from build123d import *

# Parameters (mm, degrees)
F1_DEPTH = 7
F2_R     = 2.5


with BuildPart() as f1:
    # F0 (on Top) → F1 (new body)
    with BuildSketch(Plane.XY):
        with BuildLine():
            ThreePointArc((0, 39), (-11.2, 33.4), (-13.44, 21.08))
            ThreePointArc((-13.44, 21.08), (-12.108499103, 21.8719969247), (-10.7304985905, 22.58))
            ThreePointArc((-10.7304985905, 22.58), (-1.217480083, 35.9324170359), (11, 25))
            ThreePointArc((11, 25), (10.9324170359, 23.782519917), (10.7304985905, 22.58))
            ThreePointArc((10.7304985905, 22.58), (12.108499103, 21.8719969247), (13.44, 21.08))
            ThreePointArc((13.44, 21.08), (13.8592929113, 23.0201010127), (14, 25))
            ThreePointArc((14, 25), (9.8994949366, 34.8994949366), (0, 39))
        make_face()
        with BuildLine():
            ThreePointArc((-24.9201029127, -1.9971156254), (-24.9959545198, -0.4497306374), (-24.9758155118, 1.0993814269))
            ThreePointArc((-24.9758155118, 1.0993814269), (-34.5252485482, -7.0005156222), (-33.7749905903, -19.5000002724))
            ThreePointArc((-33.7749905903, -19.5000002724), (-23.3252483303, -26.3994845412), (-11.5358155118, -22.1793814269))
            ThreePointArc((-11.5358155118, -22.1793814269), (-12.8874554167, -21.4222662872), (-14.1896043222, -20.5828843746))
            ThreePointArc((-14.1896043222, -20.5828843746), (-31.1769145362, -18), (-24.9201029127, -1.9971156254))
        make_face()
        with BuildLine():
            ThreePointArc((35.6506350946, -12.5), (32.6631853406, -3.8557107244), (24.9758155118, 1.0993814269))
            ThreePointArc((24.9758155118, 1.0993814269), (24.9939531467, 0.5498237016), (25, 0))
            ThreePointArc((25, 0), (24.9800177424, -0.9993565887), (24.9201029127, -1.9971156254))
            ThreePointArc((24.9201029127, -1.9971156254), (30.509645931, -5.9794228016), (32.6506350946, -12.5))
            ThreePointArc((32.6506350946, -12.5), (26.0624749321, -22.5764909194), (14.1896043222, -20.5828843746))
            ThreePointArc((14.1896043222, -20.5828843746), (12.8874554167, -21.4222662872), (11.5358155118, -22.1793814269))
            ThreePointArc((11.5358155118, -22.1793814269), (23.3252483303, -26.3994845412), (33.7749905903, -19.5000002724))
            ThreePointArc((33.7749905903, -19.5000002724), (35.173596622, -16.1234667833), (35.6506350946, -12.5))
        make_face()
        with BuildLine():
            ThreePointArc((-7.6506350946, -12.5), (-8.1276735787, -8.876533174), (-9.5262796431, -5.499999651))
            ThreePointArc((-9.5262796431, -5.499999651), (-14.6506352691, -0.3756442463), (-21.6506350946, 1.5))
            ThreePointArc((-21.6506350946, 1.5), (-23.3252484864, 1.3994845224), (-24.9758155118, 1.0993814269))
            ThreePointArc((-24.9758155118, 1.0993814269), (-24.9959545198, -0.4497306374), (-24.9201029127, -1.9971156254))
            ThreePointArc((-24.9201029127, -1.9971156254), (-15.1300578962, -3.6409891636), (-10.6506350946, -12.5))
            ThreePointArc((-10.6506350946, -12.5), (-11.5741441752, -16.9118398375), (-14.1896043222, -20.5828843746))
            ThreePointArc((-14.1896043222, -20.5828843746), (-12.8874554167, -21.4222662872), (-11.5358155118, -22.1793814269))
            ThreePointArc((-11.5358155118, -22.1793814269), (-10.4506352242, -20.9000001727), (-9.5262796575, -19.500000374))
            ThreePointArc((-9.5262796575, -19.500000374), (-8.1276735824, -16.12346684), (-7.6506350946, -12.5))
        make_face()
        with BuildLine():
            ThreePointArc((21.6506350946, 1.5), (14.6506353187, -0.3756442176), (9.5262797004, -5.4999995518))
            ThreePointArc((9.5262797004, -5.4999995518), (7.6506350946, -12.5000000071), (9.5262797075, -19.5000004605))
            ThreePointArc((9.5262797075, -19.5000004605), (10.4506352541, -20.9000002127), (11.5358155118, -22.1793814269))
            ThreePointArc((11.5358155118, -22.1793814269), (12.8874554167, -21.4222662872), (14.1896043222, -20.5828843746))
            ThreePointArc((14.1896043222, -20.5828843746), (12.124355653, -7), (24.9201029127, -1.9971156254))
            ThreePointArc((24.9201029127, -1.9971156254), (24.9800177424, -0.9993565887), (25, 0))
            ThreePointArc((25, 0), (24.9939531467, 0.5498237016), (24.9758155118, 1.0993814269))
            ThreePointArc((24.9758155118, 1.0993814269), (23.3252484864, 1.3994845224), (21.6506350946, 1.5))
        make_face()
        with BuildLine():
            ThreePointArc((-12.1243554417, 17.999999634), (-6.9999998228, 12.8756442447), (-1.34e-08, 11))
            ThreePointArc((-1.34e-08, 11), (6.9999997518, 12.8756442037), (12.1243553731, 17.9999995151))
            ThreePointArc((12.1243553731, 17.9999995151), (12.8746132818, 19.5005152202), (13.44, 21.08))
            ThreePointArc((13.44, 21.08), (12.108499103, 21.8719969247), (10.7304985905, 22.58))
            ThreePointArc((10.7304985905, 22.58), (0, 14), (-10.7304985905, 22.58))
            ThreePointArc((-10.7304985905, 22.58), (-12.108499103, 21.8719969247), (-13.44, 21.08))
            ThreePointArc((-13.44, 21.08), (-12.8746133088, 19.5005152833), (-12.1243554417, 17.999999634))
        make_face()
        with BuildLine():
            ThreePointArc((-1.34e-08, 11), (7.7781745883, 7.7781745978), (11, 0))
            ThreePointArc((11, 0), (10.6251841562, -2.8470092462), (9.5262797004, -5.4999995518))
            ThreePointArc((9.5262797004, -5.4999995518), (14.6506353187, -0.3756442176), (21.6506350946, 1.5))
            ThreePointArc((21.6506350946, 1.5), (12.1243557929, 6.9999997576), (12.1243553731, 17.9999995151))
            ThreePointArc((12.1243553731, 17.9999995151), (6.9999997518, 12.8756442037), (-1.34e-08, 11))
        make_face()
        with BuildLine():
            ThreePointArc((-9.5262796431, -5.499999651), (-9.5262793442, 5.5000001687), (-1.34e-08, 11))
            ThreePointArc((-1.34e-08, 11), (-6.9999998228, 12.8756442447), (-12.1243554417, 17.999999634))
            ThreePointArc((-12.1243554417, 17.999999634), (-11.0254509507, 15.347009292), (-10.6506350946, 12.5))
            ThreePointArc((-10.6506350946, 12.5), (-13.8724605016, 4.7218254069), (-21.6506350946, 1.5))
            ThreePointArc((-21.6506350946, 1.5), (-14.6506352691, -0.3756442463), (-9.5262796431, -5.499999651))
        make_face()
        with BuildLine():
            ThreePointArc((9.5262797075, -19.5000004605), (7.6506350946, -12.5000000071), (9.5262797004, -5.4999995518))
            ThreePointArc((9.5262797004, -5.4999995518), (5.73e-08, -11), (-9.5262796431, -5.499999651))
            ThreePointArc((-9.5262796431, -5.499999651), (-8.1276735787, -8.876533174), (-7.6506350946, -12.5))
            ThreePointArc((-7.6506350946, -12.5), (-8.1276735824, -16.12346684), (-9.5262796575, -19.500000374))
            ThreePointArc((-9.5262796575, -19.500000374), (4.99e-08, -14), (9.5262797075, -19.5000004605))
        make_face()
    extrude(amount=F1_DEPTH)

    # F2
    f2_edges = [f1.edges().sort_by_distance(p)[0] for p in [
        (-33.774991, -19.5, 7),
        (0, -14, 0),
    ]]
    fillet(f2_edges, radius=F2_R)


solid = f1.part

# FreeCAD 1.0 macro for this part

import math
import FreeCAD as App
import Part
import Sketcher

V = App.Vector
Q = App.Units.Quantity


def edges_at(feature, points):
    """Names of the edges that pass closest to the given points."""
    edges = feature.Shape.Edges
    near = lambda p: min(range(len(edges)), key=lambda i: edges[i].distToShape(Part.Vertex(*p))[0])
    return sorted({f"Edge{near(p) + 1}" for p in points})

doc = App.newDocument("Part")
body = doc.addObject("PartDesign::Body", "Body")

sketch1 = body.newObject("Sketcher::SketchObject", "Sketch")
sketch1.AttachmentSupport = (doc.getObject("XY_Plane"), [""])
sketch1.MapMode = "FlatFace"
sketch1.addGeometry(Part.ArcOfCircle(Part.Circle(V(0, 25, 0), V(0, 0, 1), 14), math.radians(90), math.radians(196)), False)
sketch1.addGeometry(Part.ArcOfCircle(Part.Circle(V(0, 25, 0), V(0, 0, 1), 14), math.radians(-163.74), math.radians(-150)), False)
sketch1.addGeometry(Part.ArcOfCircle(Part.Circle(V(-21.7, 12.5, 0), V(0, 0, 1), 11), math.radians(0), math.radians(30)), False)
sketch1.addGeometry(Part.ArcOfCircle(Part.Circle(V(-21.7, 12.5, 0), V(0, 0, 1), 11), math.radians(-90), math.radians(0)), False)
sketch1.addGeometry(Part.ArcOfCircle(Part.Circle(V(-21.7, -12.5, 0), V(0, 0, 1), 14), math.radians(90), math.radians(103.74)), False)
sketch1.addGeometry(Part.ArcOfCircle(Part.Circle(V(-21.7, -12.5, 0), V(0, 0, 1), 14), math.radians(104), math.radians(210)), False)
sketch1.addGeometry(Part.ArcOfCircle(Part.Circle(V(-21.7, -12.5, 0), V(0, 0, 1), 14), math.radians(-150), math.radians(-44)), False)
sketch1.addGeometry(Part.ArcOfCircle(Part.Circle(V(-21.7, -12.5, 0), V(0, 0, 1), 14), math.radians(-43.74), math.radians(-30)), False)
sketch1.addGeometry(Part.ArcOfCircle(Part.Circle(V(0, -25, 0), V(0, 0, 1), 11), math.radians(30), math.radians(150)), False)
sketch1.addGeometry(Part.ArcOfCircle(Part.Circle(V(21.7, -12.5, 0), V(0, 0, 1), 14), math.radians(-150), math.radians(-136.26)), False)
sketch1.addGeometry(Part.ArcOfCircle(Part.Circle(V(21.7, -12.5, 0), V(0, 0, 1), 14), math.radians(-136), math.radians(-30)), False)
sketch1.addGeometry(Part.ArcOfCircle(Part.Circle(V(21.7, -12.5, 0), V(0, 0, 1), 14), math.radians(-30), math.radians(0)), False)
sketch1.addGeometry(Part.ArcOfCircle(Part.Circle(V(21.7, -12.5, 0), V(0, 0, 1), 14), math.radians(0), math.radians(76)), False)
sketch1.addGeometry(Part.ArcOfCircle(Part.Circle(V(21.7, -12.5, 0), V(0, 0, 1), 14), math.radians(76.26), math.radians(90)), False)
sketch1.addGeometry(Part.ArcOfCircle(Part.Circle(V(21.7, 12.5, 0), V(0, 0, 1), 11), math.radians(150), math.radians(270)), False)
sketch1.addGeometry(Part.ArcOfCircle(Part.Circle(V(0, 25, 0), V(0, 0, 1), 14), math.radians(-30), math.radians(-16.26)), False)
sketch1.addGeometry(Part.ArcOfCircle(Part.Circle(V(0, 25, 0), V(0, 0, 1), 14), math.radians(-16.26), math.radians(0)), False)
sketch1.addGeometry(Part.ArcOfCircle(Part.Circle(V(0, 25, 0), V(0, 0, 1), 14), math.radians(0), math.radians(90)), False)
sketch1.addGeometry(Part.ArcOfCircle(Part.Circle(V(0, 0, 0), V(0, 0, 1), 11), math.radians(0), math.radians(90)), False)
sketch1.addGeometry(Part.ArcOfCircle(Part.Circle(V(0, 0, 0), V(0, 0, 1), 11), math.radians(-30), math.radians(0)), False)
sketch1.addGeometry(Part.ArcOfCircle(Part.Circle(V(0, 0, 0), V(0, 0, 1), 11), math.radians(90), math.radians(330)), False)
sketch1.addGeometry(Part.ArcOfCircle(Part.Circle(V(0, 25, 0), V(0, 0, 1), 11), math.radians(0), math.radians(193)), False)
sketch1.addGeometry(Part.ArcOfCircle(Part.Circle(V(0, 25, 0), V(0, 0, 1), 11), math.radians(-12.71), math.radians(0)), False)
sketch1.addGeometry(Part.ArcOfCircle(Part.Circle(V(0, 25, 0), V(0, 0, 1), 11), math.radians(-167), math.radians(-13)), False)
sketch1.addGeometry(Part.ArcOfCircle(Part.Circle(V(21.7, -12.5, 0), V(0, 0, 1), 11), math.radians(73), math.radians(227)), False)
sketch1.addGeometry(Part.ArcOfCircle(Part.Circle(V(21.7, -12.5, 0), V(0, 0, 1), 11), math.radians(-133), math.radians(73)), False)
sketch1.addGeometry(Part.ArcOfCircle(Part.Circle(V(-21.7, -12.5, 0), V(0, 0, 1), 11), math.radians(-47), math.radians(0)), False)
sketch1.addGeometry(Part.ArcOfCircle(Part.Circle(V(-21.7, -12.5, 0), V(0, 0, 1), 11), math.radians(107), math.radians(313)), False)
sketch1.addGeometry(Part.ArcOfCircle(Part.Circle(V(-21.7, -12.5, 0), V(0, 0, 1), 11), math.radians(0), math.radians(107)), False)
sketch1.addConstraint(Sketcher.Constraint("Tangent", 0, 2, 1, 1))
sketch1.addConstraint(Sketcher.Constraint("Tangent", 1, 2, 2, 2))
sketch1.addConstraint(Sketcher.Constraint("Tangent", 2, 1, 3, 2))
sketch1.addConstraint(Sketcher.Constraint("Tangent", 3, 1, 4, 1))
sketch1.addConstraint(Sketcher.Constraint("Tangent", 4, 2, 5, 1))
sketch1.addConstraint(Sketcher.Constraint("Tangent", 5, 2, 6, 1))
sketch1.addConstraint(Sketcher.Constraint("Tangent", 6, 2, 7, 1))
sketch1.addConstraint(Sketcher.Constraint("Tangent", 7, 2, 8, 2))
sketch1.addConstraint(Sketcher.Constraint("Tangent", 8, 1, 9, 1))
sketch1.addConstraint(Sketcher.Constraint("Tangent", 9, 2, 10, 1))
sketch1.addConstraint(Sketcher.Constraint("Tangent", 10, 2, 11, 1))
sketch1.addConstraint(Sketcher.Constraint("Tangent", 11, 2, 12, 1))
sketch1.addConstraint(Sketcher.Constraint("Tangent", 12, 2, 13, 1))
sketch1.addConstraint(Sketcher.Constraint("Tangent", 13, 2, 14, 2))
sketch1.addConstraint(Sketcher.Constraint("Tangent", 14, 1, 15, 1))
sketch1.addConstraint(Sketcher.Constraint("Tangent", 15, 2, 16, 1))
sketch1.addConstraint(Sketcher.Constraint("Tangent", 16, 2, 17, 1))
sketch1.addConstraint(Sketcher.Constraint("Tangent", 17, 2, 0, 1))
sketch1.addConstraint(Sketcher.Constraint("Tangent", 18, 1, 19, 2))
sketch1.addConstraint(Sketcher.Constraint("Tangent", 19, 1, 20, 2))
sketch1.addConstraint(Sketcher.Constraint("Tangent", 20, 1, 18, 2))
sketch1.addConstraint(Sketcher.Constraint("Tangent", 21, 1, 22, 2))
sketch1.addConstraint(Sketcher.Constraint("Tangent", 22, 1, 23, 2))
sketch1.addConstraint(Sketcher.Constraint("Tangent", 23, 1, 21, 2))
sketch1.addConstraint(Sketcher.Constraint("Tangent", 24, 1, 25, 2))
sketch1.addConstraint(Sketcher.Constraint("Coincident", 25, 1, 24, 2))
sketch1.addConstraint(Sketcher.Constraint("Tangent", 26, 1, 27, 2))
sketch1.addConstraint(Sketcher.Constraint("Tangent", 27, 1, 28, 2))
sketch1.addConstraint(Sketcher.Constraint("Tangent", 28, 1, 26, 2))
sketch1.addConstraint(Sketcher.Constraint("Coincident", 18, 3, -1, 1))
sketch1.addConstraint(Sketcher.Constraint("Coincident", 6, 3, 4, 3))
sketch1.addConstraint(Sketcher.Constraint("Coincident", 11, 3, 9, 3))
sketch1.addConstraint(Sketcher.Constraint("Coincident", 13, 3, 9, 3))
sketch1.addConstraint(Sketcher.Constraint("Coincident", 15, 3, 0, 3))
sketch1.addConstraint(Sketcher.Constraint("Coincident", 21, 3, 0, 3))
sketch1.addConstraint(Sketcher.Constraint("Coincident", 24, 3, 9, 3))
sketch1.addConstraint(Sketcher.Constraint("Coincident", 26, 3, 4, 3))
sketch1.addConstraint(Sketcher.Constraint("Equal", 0, 1))
sketch1.addConstraint(Sketcher.Constraint("Equal", 2, 3))
sketch1.addConstraint(Sketcher.Constraint("Equal", 1, 4))
sketch1.addConstraint(Sketcher.Constraint("Equal", 6, 7))
sketch1.addConstraint(Sketcher.Constraint("Equal", 3, 8))
sketch1.addConstraint(Sketcher.Constraint("Equal", 7, 9))
sketch1.addConstraint(Sketcher.Constraint("Equal", 8, 14))
sketch1.addConstraint(Sketcher.Constraint("Equal", 13, 15))
sketch1.addConstraint(Sketcher.Constraint("Equal", 14, 18))
sketch1.addConstraint(Sketcher.Constraint("Equal", 20, 21))
sketch1.addConstraint(Sketcher.Constraint("Equal", 23, 24))
sketch1.addConstraint(Sketcher.Constraint("Equal", 25, 26))
sketch1.addConstraint(Sketcher.Constraint("Symmetric", 0, 3, 8, 3, -1, 1))
sketch1.addConstraint(Sketcher.Constraint("Symmetric", 4, 3, 9, 3, -2))
sketch1.addConstraint(Sketcher.Constraint("Symmetric", 2, 1, 28, 1, -1))
sketch1.addConstraint(Sketcher.Constraint("PointOnObject", 17, 2, -2))
sketch1.addConstraint(Sketcher.Constraint("PointOnObject", 18, 1, -1))
sketch1.addConstraint(Sketcher.Constraint("PointOnObject", 20, 1, -2))
sketch1.addConstraint(Sketcher.Constraint("Horizontal", 14, 3, 2, 1))
sketch1.addConstraint(Sketcher.Constraint("Horizontal", 5, 2, 7, 2))
sketch1.addConstraint(Sketcher.Constraint("Horizontal", 6, 2, 9, 2))
sketch1.addConstraint(Sketcher.Constraint("Horizontal", 8, 1, 10, 2))
sketch1.addConstraint(Sketcher.Constraint("Horizontal", 28, 3, 11, 2))
sketch1.addConstraint(Sketcher.Constraint("Horizontal", 4, 2, 12, 2))
sketch1.addConstraint(Sketcher.Constraint("Horizontal", 0, 2, 15, 2))
sketch1.addConstraint(Sketcher.Constraint("Horizontal", 23, 3, 16, 2))
sketch1.addConstraint(Sketcher.Constraint("Horizontal", 16, 2, 21, 1))
sketch1.addConstraint(Sketcher.Constraint("Horizontal", 22, 1, 23, 1))
sketch1.addConstraint(Sketcher.Constraint("Horizontal", 25, 1, 26, 1))
sketch1.addConstraint(Sketcher.Constraint("Horizontal", 24, 1, 27, 1))
sketch1.addConstraint(Sketcher.Constraint("Vertical", 8, 1, 19, 1))
sketch1.addConstraint(Sketcher.Constraint("Radius", 0, Q("14 mm")))
sketch1.addConstraint(Sketcher.Constraint("Radius", 2, Q("11 mm")))
sketch1.addConstraint(Sketcher.Constraint("DistanceY", -1, 1, 0, 3, Q("25 mm")))
sketch1.addConstraint(Sketcher.Constraint("DistanceY", 15, 2, 22, 1, Q("1.5 mm")))
sketch1.addConstraint(Sketcher.Constraint("DistanceX", 0, 2, -1, 1, Q("13.44 mm")))
sketch1.addConstraint(Sketcher.Constraint("DistanceY", -1, 1, 4, 2, Q("1.099381 mm")))
sketch1.addConstraint(Sketcher.Constraint("DistanceY", 6, 2, -1, 1, Q("22.179381 mm")))
sketch1.addConstraint(Sketcher.Constraint("DistanceX", 9, 2, 25, 1, Q("2.653789 mm")))
sketch1.addConstraint(Sketcher.Constraint("DistanceX", -1, 1, 24, 1, Q("24.920103 mm")))
pad1 = body.newObject("PartDesign::Pad", "Pad")
pad1.Profile = sketch1
pad1.Length = 7
doc.recompute()

fillet = body.newObject("PartDesign::Fillet", "Fillet")
fillet.Base = (pad1, edges_at(pad1, [(-34.525, -7.001, 7), (0, -14, 0)]))
fillet.Radius = 2.5

doc.recompute()
